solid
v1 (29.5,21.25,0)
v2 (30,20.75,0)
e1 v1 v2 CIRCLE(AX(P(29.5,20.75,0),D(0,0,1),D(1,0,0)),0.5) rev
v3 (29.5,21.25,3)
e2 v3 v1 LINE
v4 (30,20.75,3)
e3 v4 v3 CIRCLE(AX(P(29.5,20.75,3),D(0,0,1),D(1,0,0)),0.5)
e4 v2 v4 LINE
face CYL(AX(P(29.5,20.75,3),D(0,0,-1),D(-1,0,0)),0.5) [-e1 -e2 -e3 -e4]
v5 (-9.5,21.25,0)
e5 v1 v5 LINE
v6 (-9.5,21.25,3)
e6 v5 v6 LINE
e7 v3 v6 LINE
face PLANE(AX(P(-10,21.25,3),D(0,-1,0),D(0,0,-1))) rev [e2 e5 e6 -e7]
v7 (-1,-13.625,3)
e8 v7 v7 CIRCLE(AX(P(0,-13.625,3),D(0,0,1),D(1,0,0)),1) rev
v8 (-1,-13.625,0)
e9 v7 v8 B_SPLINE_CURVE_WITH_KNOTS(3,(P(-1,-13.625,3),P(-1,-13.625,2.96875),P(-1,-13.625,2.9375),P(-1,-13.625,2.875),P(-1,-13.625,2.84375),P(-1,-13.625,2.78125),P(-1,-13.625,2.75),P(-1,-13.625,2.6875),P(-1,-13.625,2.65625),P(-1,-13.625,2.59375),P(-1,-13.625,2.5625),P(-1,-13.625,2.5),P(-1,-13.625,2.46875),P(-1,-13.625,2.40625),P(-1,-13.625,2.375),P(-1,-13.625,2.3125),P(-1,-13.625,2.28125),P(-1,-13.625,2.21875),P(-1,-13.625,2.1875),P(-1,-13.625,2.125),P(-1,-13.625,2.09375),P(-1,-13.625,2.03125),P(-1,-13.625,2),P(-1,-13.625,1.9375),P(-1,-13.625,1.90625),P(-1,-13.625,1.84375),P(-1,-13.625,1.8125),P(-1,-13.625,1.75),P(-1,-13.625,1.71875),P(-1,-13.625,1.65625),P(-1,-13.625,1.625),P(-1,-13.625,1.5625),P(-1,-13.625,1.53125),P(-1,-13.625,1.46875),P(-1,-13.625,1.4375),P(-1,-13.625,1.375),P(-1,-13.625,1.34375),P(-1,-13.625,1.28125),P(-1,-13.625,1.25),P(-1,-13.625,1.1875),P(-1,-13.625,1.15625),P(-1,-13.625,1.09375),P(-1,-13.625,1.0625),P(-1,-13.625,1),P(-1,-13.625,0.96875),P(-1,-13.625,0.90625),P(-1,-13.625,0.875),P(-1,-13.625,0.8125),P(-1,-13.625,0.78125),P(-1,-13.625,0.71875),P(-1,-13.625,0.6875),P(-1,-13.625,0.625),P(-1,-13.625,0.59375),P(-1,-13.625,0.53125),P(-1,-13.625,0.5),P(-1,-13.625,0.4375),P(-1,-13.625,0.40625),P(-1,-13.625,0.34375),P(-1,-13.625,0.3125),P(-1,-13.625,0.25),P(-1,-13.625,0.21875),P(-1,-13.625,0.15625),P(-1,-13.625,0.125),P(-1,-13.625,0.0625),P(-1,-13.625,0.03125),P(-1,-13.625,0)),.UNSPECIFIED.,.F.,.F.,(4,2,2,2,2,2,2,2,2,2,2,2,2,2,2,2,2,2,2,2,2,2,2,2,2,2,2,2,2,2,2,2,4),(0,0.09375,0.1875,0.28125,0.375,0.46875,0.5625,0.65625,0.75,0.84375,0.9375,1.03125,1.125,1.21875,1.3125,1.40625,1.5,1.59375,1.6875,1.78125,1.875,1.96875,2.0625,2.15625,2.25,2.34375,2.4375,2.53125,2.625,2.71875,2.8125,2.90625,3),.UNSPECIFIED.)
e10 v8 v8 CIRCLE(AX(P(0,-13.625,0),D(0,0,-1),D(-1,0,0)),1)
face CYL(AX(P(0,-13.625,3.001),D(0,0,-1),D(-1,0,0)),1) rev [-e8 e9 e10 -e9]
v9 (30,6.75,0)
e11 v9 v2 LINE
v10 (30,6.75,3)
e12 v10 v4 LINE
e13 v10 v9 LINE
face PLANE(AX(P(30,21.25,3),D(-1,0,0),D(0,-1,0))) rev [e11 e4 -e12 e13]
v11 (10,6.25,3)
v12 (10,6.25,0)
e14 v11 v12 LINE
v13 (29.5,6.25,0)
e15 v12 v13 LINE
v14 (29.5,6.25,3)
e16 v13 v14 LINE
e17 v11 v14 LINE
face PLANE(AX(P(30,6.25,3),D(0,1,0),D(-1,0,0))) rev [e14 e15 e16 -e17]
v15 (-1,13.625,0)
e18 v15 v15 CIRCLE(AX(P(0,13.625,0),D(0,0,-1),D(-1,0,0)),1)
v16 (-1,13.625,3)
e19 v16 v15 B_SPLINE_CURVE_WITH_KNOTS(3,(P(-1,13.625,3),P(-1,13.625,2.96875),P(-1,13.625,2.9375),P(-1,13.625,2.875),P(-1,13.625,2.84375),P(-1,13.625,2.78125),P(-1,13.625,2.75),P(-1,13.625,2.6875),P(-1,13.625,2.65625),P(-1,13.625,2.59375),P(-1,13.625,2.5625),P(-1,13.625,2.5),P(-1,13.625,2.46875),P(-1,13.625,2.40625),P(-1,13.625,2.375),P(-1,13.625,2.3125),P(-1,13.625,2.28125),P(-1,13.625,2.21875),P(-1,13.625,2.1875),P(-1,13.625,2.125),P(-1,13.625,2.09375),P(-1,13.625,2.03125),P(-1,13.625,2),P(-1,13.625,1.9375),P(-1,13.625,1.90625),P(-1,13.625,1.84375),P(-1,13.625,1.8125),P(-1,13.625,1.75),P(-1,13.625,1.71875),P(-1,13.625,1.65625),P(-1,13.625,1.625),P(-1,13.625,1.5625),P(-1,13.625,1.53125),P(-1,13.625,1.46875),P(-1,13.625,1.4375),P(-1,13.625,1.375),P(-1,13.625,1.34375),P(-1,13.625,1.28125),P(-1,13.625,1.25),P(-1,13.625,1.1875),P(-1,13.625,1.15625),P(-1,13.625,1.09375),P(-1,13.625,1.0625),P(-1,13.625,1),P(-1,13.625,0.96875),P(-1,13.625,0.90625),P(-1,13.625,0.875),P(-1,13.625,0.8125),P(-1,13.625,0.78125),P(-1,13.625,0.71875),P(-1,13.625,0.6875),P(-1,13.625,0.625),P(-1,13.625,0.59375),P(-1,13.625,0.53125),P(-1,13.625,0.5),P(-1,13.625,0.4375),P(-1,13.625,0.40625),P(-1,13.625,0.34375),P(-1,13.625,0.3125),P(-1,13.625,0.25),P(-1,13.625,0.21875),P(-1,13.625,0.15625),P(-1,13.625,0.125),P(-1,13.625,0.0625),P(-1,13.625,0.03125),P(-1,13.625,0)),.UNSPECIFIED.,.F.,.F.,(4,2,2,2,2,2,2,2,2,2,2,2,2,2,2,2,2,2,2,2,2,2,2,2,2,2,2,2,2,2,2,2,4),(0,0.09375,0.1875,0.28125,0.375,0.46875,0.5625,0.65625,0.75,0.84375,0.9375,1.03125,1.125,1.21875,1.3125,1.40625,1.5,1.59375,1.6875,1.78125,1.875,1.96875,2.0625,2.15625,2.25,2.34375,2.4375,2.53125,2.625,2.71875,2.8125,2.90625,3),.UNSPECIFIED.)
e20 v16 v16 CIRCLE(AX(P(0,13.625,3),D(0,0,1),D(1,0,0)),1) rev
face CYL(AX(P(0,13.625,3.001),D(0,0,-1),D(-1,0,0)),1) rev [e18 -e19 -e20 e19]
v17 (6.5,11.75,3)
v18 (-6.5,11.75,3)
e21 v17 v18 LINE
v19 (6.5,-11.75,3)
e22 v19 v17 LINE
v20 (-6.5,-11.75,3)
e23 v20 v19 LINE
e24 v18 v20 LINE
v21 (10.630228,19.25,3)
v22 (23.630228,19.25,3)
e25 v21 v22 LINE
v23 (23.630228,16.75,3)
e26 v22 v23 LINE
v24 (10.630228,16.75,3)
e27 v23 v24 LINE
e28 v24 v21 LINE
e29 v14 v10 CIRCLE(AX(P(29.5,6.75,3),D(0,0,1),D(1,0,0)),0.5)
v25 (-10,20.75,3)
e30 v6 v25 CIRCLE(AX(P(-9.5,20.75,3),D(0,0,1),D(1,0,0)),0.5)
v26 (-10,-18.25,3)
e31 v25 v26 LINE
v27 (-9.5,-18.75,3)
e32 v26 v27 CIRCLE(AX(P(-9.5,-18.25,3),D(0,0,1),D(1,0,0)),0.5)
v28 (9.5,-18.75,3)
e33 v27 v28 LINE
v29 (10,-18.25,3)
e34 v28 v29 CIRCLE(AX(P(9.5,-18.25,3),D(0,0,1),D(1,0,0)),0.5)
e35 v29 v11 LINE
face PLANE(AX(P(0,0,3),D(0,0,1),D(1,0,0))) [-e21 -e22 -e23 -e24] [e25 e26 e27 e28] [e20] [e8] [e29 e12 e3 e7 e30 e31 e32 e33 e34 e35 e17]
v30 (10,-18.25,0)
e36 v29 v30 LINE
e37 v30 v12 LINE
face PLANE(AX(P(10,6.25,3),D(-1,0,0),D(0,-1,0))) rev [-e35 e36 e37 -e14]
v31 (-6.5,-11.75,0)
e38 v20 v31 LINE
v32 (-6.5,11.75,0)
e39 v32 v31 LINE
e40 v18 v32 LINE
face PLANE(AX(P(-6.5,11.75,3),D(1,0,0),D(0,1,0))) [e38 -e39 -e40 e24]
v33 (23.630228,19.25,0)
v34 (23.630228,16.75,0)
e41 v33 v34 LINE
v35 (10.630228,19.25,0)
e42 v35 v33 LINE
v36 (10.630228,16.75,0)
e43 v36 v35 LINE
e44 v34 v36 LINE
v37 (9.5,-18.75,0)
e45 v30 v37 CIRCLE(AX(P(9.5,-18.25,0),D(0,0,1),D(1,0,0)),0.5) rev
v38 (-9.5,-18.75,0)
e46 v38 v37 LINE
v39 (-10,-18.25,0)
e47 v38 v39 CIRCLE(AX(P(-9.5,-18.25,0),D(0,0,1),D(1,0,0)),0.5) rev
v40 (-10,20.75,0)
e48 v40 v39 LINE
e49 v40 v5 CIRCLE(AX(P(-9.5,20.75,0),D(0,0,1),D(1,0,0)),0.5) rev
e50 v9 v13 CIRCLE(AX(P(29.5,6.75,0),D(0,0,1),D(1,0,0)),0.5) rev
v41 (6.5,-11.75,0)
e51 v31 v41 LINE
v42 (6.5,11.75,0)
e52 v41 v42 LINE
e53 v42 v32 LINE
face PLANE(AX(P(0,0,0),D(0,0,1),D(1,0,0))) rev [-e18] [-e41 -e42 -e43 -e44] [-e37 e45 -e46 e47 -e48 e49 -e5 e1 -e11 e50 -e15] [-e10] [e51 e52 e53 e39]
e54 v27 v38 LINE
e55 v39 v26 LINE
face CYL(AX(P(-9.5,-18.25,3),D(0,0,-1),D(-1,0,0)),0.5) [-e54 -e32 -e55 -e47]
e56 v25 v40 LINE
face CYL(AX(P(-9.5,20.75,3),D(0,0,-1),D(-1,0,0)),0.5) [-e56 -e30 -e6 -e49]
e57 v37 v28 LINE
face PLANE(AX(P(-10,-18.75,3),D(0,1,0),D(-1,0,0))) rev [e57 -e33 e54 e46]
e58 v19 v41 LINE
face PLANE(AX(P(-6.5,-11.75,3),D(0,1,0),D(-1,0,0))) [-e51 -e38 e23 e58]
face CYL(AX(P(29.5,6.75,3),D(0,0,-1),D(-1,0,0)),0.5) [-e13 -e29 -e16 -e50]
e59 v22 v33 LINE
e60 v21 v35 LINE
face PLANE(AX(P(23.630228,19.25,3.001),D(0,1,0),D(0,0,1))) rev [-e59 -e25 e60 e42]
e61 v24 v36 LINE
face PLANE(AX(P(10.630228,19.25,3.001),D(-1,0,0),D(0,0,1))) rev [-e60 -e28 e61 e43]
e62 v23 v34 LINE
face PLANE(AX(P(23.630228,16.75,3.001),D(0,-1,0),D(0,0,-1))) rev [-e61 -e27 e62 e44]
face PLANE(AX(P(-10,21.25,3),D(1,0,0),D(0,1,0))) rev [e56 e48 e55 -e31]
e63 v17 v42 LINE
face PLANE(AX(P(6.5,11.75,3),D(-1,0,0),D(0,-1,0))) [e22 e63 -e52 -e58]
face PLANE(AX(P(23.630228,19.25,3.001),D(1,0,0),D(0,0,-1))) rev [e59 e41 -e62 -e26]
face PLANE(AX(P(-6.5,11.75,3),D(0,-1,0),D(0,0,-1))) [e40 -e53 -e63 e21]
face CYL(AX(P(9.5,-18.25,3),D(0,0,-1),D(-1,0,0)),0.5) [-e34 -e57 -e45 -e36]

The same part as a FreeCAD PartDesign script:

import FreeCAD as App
import Part
import Sketcher
Q = App.Units.Quantity


def edges_at(feature, points):
    """Names of the edges that pass closest to the given points."""
    edges = feature.Shape.Edges
    near = lambda p: min(range(len(edges)), key=lambda i: edges[i].distToShape(Part.Vertex(*p))[0])
    return sorted({f"Edge{near(p) + 1}" for p in points})

doc = App.newDocument("Part")
body = doc.addObject("PartDesign::Body", "Body")

sketch1 = body.newObject("Sketcher::SketchObject", "Sketch")
sketch1.AttachmentSupport = (doc.getObject("XY_Plane"), [""])
sketch1.MapMode = "FlatFace"
sketch1.addGeometry(Part.LineSegment(App.Vector(30, 21, 0), App.Vector(-10, 21, 0)), False)
sketch1.addGeometry(Part.LineSegment(App.Vector(-10, 21, 0), App.Vector(-10, -19, 0)), False)
sketch1.addGeometry(Part.LineSegment(App.Vector(-10, -19, 0), App.Vector(10, -19, 0)), False)
sketch1.addGeometry(Part.LineSegment(App.Vector(10, -19, 0), App.Vector(10, 6, 0)), False)
sketch1.addGeometry(Part.LineSegment(App.Vector(10, 6, 0), App.Vector(30, 6, 0)), False)
sketch1.addGeometry(Part.LineSegment(App.Vector(30, 6, 0), App.Vector(30, 21, 0)), False)
sketch1.addGeometry(Part.LineSegment(App.Vector(-6, -12, 0), App.Vector(-6, 12, 0)), False)
sketch1.addGeometry(Part.LineSegment(App.Vector(-6, 12, 0), App.Vector(6, 12, 0)), False)
sketch1.addGeometry(Part.LineSegment(App.Vector(6, 12, 0), App.Vector(6, -12, 0)), False)
sketch1.addGeometry(Part.LineSegment(App.Vector(6, -12, 0), App.Vector(-6, -12, 0)), False)
sketch1.addConstraint(Sketcher.Constraint("Coincident", 0, 2, 1, 1))
sketch1.addConstraint(Sketcher.Constraint("Coincident", 1, 2, 2, 1))
sketch1.addConstraint(Sketcher.Constraint("Coincident", 2, 2, 3, 1))
sketch1.addConstraint(Sketcher.Constraint("Coincident", 3, 2, 4, 1))
sketch1.addConstraint(Sketcher.Constraint("Coincident", 4, 2, 5, 1))
sketch1.addConstraint(Sketcher.Constraint("Coincident", 5, 2, 0, 1))
sketch1.addConstraint(Sketcher.Constraint("Coincident", 6, 2, 7, 1))
sketch1.addConstraint(Sketcher.Constraint("Coincident", 7, 2, 8, 1))
sketch1.addConstraint(Sketcher.Constraint("Coincident", 8, 2, 9, 1))
sketch1.addConstraint(Sketcher.Constraint("Coincident", 9, 2, 6, 1))
sketch1.addConstraint(Sketcher.Constraint("Horizontal", 0))
sketch1.addConstraint(Sketcher.Constraint("Vertical", 1))
sketch1.addConstraint(Sketcher.Constraint("Horizontal", 2))
sketch1.addConstraint(Sketcher.Constraint("Vertical", 3))
sketch1.addConstraint(Sketcher.Constraint("Horizontal", 4))
sketch1.addConstraint(Sketcher.Constraint("Vertical", 5))
sketch1.addConstraint(Sketcher.Constraint("Vertical", 6))
sketch1.addConstraint(Sketcher.Constraint("Horizontal", 7))
sketch1.addConstraint(Sketcher.Constraint("Vertical", 8))
sketch1.addConstraint(Sketcher.Constraint("Horizontal", 9))
sketch1.addConstraint(Sketcher.Constraint("Symmetric", 6, 2, 8, 2, -1, 1))
sketch1.addConstraint(Sketcher.Constraint("Equal", 2, 4))
sketch1.addConstraint(Sketcher.Constraint("Equal", 0, 1))
sketch1.addConstraint(Sketcher.Constraint("DistanceX", 0, 2, 0, 1, Q("40 mm")))
sketch1.addConstraint(Sketcher.Constraint("DistanceX", 7, 1, 7, 2, Q("13 mm")))
sketch1.addConstraint(Sketcher.Constraint("DistanceY", 3, 1, 3, 2, Q("25 mm")))
sketch1.addConstraint(Sketcher.Constraint("DistanceY", 6, 1, 6, 2, Q("23.5 mm")))
sketch1.addConstraint(Sketcher.Constraint("DistanceX", 0, 2, -1, 1, Q("10 mm")))
sketch1.addConstraint(Sketcher.Constraint("DistanceY", 2, 2, 8, 2, Q("7 mm")))
pad1 = body.newObject("PartDesign::Pad", "Pad")
pad1.Profile = sketch1
pad1.Length = 3
doc.recompute()

fillet = body.newObject("PartDesign::Fillet", "Fillet")
fillet.Base = (pad1, edges_at(pad1, [
    (-10, 21.25, 1.5),
    (30, 21.25, 1.5),
    (30, 6.25, 1.5),
    (10, -18.75, 1.5),
    (-10, -18.75, 1.5),
]))
fillet.Radius = 0.5

sketch2 = body.newObject("Sketcher::SketchObject", "Sketch001")
sketch2.AttachmentSupport = (doc.getObject("XY_Plane"), [""])
sketch2.MapMode = "FlatFace"
sketch2.addGeometry(Part.Circle(App.Vector(0, 13.6, 0), App.Vector(0, 0, 1), 1), False)
sketch2.addConstraint(Sketcher.Constraint("PointOnObject", 0, 3, -2))
sketch2.addConstraint(Sketcher.Constraint("Diameter", 0, Q("2 mm")))
sketch2.addConstraint(Sketcher.Constraint("DistanceY", -1, 1, 0, 3, Q("13.625 mm")))
pocket1 = body.newObject("PartDesign::Pocket", "Pocket")
pocket1.Profile = sketch2
pocket1.Type = "UpToFirst"
pocket1.Reversed = True

sketch3 = body.newObject("Sketcher::SketchObject", "Sketch002")
sketch3.AttachmentSupport = (doc.getObject("XY_Plane"), [""])
sketch3.MapMode = "FlatFace"
sketch3.addGeometry(Part.Circle(App.Vector(0, -13.6, 0), App.Vector(0, 0, 1), 1), False)
sketch3.addConstraint(Sketcher.Constraint("PointOnObject", 0, 3, -2))
sketch3.addConstraint(Sketcher.Constraint("Diameter", 0, Q("2 mm")))
sketch3.addConstraint(Sketcher.Constraint("DistanceY", 0, 3, -1, 1, Q("13.625 mm")))
pocket2 = body.newObject("PartDesign::Pocket", "Pocket001")
pocket2.Profile = sketch3
pocket2.Type = "UpToFirst"
pocket2.Reversed = True

sketch4 = body.newObject("Sketcher::SketchObject", "Sketch003")
sketch4.AttachmentSupport = (doc.getObject("XY_Plane"), [""])
sketch4.MapMode = "FlatFace"
sketch4.addGeometry(Part.LineSegment(App.Vector(23.6, 19.2, 0), App.Vector(23.6, 16.8, 0)), False)
sketch4.addGeometry(Part.LineSegment(App.Vector(23.6, 16.8, 0), App.Vector(10.6, 16.8, 0)), False)
sketch4.addGeometry(Part.LineSegment(App.Vector(10.6, 16.8, 0), App.Vector(10.6, 19.2, 0)), False)
sketch4.addGeometry(Part.LineSegment(App.Vector(10.6, 19.2, 0), App.Vector(23.6, 19.2, 0)), False)
sketch4.addConstraint(Sketcher.Constraint("Coincident", 0, 2, 1, 1))
sketch4.addConstraint(Sketcher.Constraint("Coincident", 1, 2, 2, 1))
sketch4.addConstraint(Sketcher.Constraint("Coincident", 2, 2, 3, 1))
sketch4.addConstraint(Sketcher.Constraint("Coincident", 3, 2, 0, 1))
sketch4.addConstraint(Sketcher.Constraint("Vertical", 0))
sketch4.addConstraint(Sketcher.Constraint("Horizontal", 1))
sketch4.addConstraint(Sketcher.Constraint("Vertical", 2))
sketch4.addConstraint(Sketcher.Constraint("Horizontal", 3))
sketch4.addConstraint(Sketcher.Constraint("DistanceX", 1, 2, 1, 1, Q("13 mm")))
sketch4.addConstraint(Sketcher.Constraint("DistanceY", 0, 2, 0, 1, Q("2.5 mm")))
sketch4.addConstraint(Sketcher.Constraint("DistanceY", -1, 1, 0, 2, Q("16.75 mm")))
sketch4.addConstraint(Sketcher.Constraint("DistanceX", -1, 1, 0, 2, Q("23.630228 mm")))
pocket3 = body.newObject("PartDesign::Pocket", "Pocket002")
pocket3.Profile = sketch4
pocket3.Type = "UpToFirst"
pocket3.Reversed = True

doc.recompute()
